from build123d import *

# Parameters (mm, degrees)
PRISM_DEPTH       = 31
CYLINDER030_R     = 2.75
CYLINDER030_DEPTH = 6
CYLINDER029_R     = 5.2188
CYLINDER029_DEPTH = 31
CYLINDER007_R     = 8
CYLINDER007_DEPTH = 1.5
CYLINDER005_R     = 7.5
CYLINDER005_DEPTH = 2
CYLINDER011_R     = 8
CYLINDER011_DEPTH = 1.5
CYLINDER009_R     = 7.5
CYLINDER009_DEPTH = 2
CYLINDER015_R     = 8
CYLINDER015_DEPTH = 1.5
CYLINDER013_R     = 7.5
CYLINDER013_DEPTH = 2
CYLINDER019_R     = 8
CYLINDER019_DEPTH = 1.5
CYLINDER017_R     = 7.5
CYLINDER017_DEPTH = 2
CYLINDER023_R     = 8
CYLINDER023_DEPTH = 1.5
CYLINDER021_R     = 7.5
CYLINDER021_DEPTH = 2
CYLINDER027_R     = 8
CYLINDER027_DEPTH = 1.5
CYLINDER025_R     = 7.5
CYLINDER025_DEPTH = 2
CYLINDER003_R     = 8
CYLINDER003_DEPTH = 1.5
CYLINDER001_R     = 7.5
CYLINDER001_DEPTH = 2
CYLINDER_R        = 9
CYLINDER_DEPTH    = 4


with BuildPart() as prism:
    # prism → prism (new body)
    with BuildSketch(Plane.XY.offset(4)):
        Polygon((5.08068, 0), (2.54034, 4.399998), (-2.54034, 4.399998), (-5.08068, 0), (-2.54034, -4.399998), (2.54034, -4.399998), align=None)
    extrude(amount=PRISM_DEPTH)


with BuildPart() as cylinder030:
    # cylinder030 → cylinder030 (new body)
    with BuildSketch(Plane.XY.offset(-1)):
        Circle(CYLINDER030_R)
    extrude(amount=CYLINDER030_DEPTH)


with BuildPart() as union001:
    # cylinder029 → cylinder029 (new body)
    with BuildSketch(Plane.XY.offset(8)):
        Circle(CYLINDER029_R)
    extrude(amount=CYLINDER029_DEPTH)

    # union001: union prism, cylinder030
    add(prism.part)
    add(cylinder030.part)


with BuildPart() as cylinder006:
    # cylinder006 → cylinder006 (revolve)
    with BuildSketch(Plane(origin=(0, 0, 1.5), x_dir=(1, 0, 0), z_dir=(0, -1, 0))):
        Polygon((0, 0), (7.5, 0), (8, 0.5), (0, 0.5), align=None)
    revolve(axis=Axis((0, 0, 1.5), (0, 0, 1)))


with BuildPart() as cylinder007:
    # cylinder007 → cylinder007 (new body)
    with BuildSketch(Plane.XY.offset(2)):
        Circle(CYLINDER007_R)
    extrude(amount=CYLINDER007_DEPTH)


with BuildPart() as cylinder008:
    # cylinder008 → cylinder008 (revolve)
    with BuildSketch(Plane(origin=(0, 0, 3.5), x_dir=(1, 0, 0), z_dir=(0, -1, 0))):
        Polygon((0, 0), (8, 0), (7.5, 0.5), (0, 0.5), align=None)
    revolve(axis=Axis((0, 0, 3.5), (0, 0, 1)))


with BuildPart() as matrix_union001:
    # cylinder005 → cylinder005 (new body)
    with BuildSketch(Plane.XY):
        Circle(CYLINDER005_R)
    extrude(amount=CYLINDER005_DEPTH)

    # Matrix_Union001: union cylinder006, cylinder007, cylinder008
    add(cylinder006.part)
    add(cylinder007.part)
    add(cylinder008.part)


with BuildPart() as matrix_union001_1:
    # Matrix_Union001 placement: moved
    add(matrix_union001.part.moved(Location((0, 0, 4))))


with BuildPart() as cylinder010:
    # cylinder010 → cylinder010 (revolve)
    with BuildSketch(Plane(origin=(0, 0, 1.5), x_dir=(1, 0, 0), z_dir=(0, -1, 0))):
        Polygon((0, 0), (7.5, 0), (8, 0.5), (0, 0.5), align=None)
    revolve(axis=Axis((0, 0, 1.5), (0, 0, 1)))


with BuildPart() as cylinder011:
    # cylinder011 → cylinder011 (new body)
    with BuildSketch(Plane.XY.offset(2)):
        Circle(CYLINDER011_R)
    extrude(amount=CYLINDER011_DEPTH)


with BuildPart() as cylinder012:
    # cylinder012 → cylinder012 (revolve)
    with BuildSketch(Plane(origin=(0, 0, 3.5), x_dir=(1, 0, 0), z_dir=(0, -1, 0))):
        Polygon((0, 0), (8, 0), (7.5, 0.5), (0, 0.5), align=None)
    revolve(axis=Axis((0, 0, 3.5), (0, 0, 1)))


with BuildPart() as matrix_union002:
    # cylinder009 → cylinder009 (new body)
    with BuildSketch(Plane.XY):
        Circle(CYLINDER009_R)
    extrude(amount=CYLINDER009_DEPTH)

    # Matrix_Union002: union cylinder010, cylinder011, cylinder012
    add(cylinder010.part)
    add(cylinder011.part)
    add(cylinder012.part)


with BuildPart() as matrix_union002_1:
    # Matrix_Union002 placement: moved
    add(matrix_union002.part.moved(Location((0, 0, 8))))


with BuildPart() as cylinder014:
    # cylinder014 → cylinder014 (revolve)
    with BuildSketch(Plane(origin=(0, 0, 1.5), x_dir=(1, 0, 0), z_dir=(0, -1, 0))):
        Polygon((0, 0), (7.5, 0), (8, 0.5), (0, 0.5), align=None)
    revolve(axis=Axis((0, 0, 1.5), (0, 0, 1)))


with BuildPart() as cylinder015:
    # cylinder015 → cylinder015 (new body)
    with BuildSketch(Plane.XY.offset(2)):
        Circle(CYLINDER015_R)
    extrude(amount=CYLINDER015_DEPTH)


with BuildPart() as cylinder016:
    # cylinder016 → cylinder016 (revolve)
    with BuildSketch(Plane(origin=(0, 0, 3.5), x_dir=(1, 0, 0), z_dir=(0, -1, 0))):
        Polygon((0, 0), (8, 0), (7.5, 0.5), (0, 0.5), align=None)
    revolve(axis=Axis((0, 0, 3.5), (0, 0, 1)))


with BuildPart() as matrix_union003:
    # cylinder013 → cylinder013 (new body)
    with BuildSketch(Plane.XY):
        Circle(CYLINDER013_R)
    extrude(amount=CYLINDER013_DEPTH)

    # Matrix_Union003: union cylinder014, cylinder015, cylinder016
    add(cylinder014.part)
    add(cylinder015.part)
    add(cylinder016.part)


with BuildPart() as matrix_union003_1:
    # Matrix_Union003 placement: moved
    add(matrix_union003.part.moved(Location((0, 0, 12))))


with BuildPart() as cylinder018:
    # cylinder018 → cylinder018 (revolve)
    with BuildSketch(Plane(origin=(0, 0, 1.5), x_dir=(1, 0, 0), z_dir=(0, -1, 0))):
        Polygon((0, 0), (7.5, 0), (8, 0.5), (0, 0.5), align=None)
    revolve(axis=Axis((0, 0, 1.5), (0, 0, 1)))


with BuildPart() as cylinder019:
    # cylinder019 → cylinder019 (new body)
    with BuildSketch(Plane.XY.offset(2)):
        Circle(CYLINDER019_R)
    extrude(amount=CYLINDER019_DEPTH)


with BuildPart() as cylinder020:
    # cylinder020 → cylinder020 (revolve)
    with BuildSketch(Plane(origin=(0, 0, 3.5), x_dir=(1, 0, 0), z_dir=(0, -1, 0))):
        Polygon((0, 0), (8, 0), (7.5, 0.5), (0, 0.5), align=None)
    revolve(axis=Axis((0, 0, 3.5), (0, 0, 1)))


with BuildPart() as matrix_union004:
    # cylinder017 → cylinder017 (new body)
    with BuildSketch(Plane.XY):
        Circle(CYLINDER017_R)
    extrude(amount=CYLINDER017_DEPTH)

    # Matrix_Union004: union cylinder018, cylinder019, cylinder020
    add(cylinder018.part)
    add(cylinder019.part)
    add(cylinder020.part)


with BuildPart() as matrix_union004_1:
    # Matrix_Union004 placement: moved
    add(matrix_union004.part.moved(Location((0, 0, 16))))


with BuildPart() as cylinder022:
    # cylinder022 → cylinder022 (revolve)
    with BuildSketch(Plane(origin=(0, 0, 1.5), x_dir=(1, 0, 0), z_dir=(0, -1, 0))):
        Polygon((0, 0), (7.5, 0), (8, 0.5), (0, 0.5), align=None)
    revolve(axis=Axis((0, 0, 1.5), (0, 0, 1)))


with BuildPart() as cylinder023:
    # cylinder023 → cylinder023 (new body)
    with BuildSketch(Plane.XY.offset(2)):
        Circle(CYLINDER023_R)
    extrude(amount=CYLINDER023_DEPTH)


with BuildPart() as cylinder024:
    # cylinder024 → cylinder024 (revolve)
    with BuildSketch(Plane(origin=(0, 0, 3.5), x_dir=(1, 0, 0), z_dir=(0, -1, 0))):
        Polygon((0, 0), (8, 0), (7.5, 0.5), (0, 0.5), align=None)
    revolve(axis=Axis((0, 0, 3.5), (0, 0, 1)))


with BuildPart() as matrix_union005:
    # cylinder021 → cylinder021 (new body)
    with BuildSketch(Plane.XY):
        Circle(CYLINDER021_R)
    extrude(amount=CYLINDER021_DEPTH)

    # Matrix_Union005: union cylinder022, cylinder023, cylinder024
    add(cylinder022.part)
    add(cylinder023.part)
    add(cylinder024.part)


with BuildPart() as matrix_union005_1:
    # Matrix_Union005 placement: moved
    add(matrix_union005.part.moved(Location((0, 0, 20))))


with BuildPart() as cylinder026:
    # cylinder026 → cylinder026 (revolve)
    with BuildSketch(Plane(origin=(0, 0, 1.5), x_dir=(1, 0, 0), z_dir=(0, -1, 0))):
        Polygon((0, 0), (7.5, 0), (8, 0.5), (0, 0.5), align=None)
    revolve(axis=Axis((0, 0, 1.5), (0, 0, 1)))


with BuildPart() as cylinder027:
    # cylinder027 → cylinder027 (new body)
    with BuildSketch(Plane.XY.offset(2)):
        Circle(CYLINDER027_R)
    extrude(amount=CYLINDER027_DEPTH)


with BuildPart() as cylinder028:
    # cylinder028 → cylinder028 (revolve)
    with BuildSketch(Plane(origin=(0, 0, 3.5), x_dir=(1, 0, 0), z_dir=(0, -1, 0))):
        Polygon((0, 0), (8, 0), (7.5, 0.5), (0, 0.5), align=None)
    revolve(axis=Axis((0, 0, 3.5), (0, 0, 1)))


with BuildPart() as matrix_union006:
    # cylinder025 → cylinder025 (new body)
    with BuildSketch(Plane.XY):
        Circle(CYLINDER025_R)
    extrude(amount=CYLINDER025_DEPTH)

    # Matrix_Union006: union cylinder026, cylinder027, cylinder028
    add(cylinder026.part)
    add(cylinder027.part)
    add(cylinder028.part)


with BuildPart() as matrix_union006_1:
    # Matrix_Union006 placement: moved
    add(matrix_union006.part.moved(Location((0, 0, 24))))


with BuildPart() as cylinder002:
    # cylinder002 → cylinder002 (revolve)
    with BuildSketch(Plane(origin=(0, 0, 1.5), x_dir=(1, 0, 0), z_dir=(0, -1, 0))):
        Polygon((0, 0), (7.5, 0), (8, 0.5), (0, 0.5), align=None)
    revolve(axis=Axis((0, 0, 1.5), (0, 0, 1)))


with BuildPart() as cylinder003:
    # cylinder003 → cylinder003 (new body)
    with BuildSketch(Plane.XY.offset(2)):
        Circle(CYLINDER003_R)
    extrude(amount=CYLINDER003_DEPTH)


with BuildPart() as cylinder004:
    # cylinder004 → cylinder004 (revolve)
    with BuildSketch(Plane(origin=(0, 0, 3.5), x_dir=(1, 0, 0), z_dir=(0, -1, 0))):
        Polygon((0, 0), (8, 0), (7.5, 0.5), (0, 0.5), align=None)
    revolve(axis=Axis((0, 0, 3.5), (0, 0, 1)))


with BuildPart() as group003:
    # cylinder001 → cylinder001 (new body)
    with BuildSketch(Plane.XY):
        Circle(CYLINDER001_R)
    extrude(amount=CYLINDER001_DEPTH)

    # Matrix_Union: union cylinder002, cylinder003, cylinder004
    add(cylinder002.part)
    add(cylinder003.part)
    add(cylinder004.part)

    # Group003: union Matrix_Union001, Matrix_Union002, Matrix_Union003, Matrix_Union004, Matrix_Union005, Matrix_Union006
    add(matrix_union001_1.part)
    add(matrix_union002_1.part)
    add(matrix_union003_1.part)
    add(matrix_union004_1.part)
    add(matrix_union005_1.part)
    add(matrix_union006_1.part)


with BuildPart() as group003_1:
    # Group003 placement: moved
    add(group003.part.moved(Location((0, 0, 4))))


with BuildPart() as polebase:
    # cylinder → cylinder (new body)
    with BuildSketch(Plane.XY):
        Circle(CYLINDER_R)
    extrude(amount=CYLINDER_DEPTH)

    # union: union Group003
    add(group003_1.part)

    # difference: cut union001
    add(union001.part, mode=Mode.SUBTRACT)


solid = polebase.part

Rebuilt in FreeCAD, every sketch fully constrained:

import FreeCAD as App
import Part
import Sketcher
from FreeCAD import Vector
Q = App.Units.Quantity


def add_polygon(sketch, points):
    """Adds a closed chain of lines whose ends are joined by coincident constraints."""
    first, n = sketch.GeometryCount, len(points)
    for a, b in zip(points, points[1:] + points[:1]):
        sketch.addGeometry(Part.LineSegment(App.Vector(*a, 0), App.Vector(*b, 0)), False)
    for i in range(n):
        sketch.addConstraint(Sketcher.Constraint("Coincident", first + i, 2, first + (i + 1) % n, 1))

doc = App.newDocument("Part")
params = doc.addObject("Spreadsheet::Sheet", "Params")
for row, (alias, value) in enumerate([
    ("pad1_length", "31 mm"),
    ("sketch2_diameter", "5.5 mm"),
    ("pad2_length", "6 mm"),
    ("pad3_length", "31 mm"),
    ("sketch4_width", "8 mm"),
    ("sketch4_width2", "7.5 mm"),
    ("revolution_angle", "360 deg"),
    ("sketch5_diameter", "16 mm"),
    ("pad4_length", "1.5 mm"),
    ("sketch6_width", "8 mm"),
    ("sketch6_width2", "7.5 mm"),
    ("revolution2_angle", "360 deg"),
    ("sketch7_diameter", "15 mm"),
    ("pad5_length", "2 mm"),
    ("sketch8_width", "8 mm"),
    ("sketch8_width2", "7.5 mm"),
    ("revolution3_angle", "360 deg"),
    ("sketch9_diameter", "16 mm"),
    ("pad6_length", "1.5 mm"),
    ("sketch10_width", "8 mm"),
    ("sketch10_width2", "7.5 mm"),
    ("revolution4_angle", "360 deg"),
    ("sketch11_diameter", "15 mm"),
    ("pad7_length", "2 mm"),
    ("sketch12_width", "8 mm"),
    ("sketch12_width2", "7.5 mm"),
    ("revolution5_angle", "360 deg"),
    ("sketch13_diameter", "16 mm"),
    ("pad8_length", "1.5 mm"),
    ("sketch14_width", "8 mm"),
    ("sketch14_width2", "7.5 mm"),
    ("revolution6_angle", "360 deg"),
    ("sketch15_diameter", "15 mm"),
    ("pad9_length", "2 mm"),
    ("sketch16_width", "8 mm"),
    ("sketch16_width2", "7.5 mm"),
    ("revolution7_angle", "360 deg"),
    ("sketch17_diameter", "16 mm"),
    ("pad10_length", "1.5 mm"),
    ("sketch18_width", "8 mm"),
    ("sketch18_width2", "7.5 mm"),
    ("revolution8_angle", "360 deg"),
    ("sketch19_diameter", "15 mm"),
    ("pad11_length", "2 mm"),
    ("sketch20_width", "8 mm"),
    ("sketch20_width2", "7.5 mm"),
    ("revolution9_angle", "360 deg"),
    ("sketch21_diameter", "16 mm"),
    ("pad12_length", "1.5 mm"),
    ("sketch22_width", "8 mm"),
    ("sketch22_width2", "7.5 mm"),
    ("revolution10_angle", "360 deg"),
    ("sketch23_diameter", "15 mm"),
    ("pad13_length", "2 mm"),
    ("sketch24_width", "8 mm"),
    ("sketch24_width2", "7.5 mm"),
    ("revolution11_angle", "360 deg"),
    ("sketch25_diameter", "16 mm"),
    ("pad14_length", "1.5 mm"),
    ("sketch26_width", "8 mm"),
    ("sketch26_width2", "7.5 mm"),
    ("revolution12_angle", "360 deg"),
    ("sketch27_diameter", "15 mm"),
    ("pad15_length", "2 mm"),
    ("sketch28_width", "8 mm"),
    ("sketch28_width2", "7.5 mm"),
    ("revolution13_angle", "360 deg"),
    ("sketch29_diameter", "16 mm"),
    ("pad16_length", "1.5 mm"),
    ("sketch30_width", "8 mm"),
    ("sketch30_width2", "7.5 mm"),
    ("revolution14_angle", "360 deg"),
    ("sketch31_diameter", "15 mm"),
    ("pad17_length", "2 mm"),
    ("sketch32_diameter", "18 mm"),
    ("pad18_length", "4 mm"),
], start=1):
    params.set(f"A{row}", alias)
    params.set(f"B{row}", "=" + value)
    params.setAlias(f"B{row}", alias)

body = doc.addObject("PartDesign::Body", "Body")

sketch1 = body.newObject("Sketcher::SketchObject", "Sketch")
sketch1.AttachmentSupport = (doc.getObject("XY_Plane"), [""])
sketch1.MapMode = "FlatFace"
sketch1.AttachmentOffset = App.Placement(Vector(0, 0, 4), App.Rotation())
add_polygon(sketch1, [(5, 0), (3, 4), (-3, 4), (-5, 0), (-3, -4), (3, -4)])
sketch1.addConstraint([
    Sketcher.Constraint("Horizontal", 1),
    Sketcher.Constraint("Horizontal", 4),
    Sketcher.Constraint("Symmetric", 0, 2, 3, 2, -1, 1),
    Sketcher.Constraint("Symmetric", 2, 2, 5, 2, -1, 1),
    Sketcher.Constraint("PointOnObject", 2, 2, -1),
    Sketcher.Constraint("Parallel", 2, 5),
    Sketcher.Constraint("Vertical", 1, 2, 3, 2),
    Sketcher.Constraint("Angle", 0, Q("120 deg")),
    Sketcher.Constraint("DistanceX", 1, 2, 1, 1, 5.08068),
    Sketcher.Constraint("Distance", 0, 5.08068),
])
pad1 = body.newObject("PartDesign::Pad", "Pad")
pad1.Profile = sketch1
pad1.setExpression("Length", "Params.pad1_length")
body2 = doc.addObject("PartDesign::Body", "Body001")

sketch2 = body2.newObject("Sketcher::SketchObject", "Sketch001")
sketch2.AttachmentSupport = (doc.getObject("XY_Plane001"), [""])
sketch2.MapMode = "FlatFace"
sketch2.AttachmentOffset = App.Placement(Vector(0, 0, -1), App.Rotation())
sketch2.addGeometry(Part.Circle(Vector(0, 0, 0), Vector(0, 0, 1), 2.8), False)
sketch2.addConstraint([
    Sketcher.Constraint("Coincident", 0, 3, -1, 1),
    Sketcher.Constraint("Diameter", 0, 5.5),
])
sketch2.setExpression("Constraints[1]", "Params.sketch2_diameter")
pad2 = body2.newObject("PartDesign::Pad", "Pad001")
pad2.Profile = sketch2
pad2.setExpression("Length", "Params.pad2_length")
body3 = doc.addObject("PartDesign::Body", "Body002")

sketch3 = body3.newObject("Sketcher::SketchObject", "Sketch002")
sketch3.AttachmentSupport = (doc.getObject("XY_Plane002"), [""])
sketch3.MapMode = "FlatFace"
sketch3.AttachmentOffset = App.Placement(Vector(0, 0, 8), App.Rotation())
sketch3.addGeometry(Part.Circle(Vector(0, 0, 0), Vector(0, 0, 1), 5), False)
sketch3.addConstraint([
    Sketcher.Constraint("Coincident", 0, 3, -1, 1),
    Sketcher.Constraint("Diameter", 0, 10.4376),
])
pad3 = body3.newObject("PartDesign::Pad", "Pad002")
pad3.Profile = sketch3
pad3.setExpression("Length", "Params.pad3_length")
doc.recompute()

boolean = body3.newObject("PartDesign::Boolean", "Boolean")
boolean.Type = "Fuse"
boolean.addObjects([body])
doc.recompute()

boolean2 = body3.newObject("PartDesign::Boolean", "Boolean001")
boolean2.Type = "Fuse"
boolean2.addObjects([body2])
body4 = doc.addObject("PartDesign::Body", "Body003")

sketch4 = body4.newObject("Sketcher::SketchObject", "Sketch003")
sketch4.AttachmentSupport = (doc.getObject("XZ_Plane003"), [""])
sketch4.MapMode = "FlatFace"
add_polygon(sketch4, [(0, 1.5), (7.5, 1.5), (8, 2), (0, 2)])
sketch4.addConstraint([
    Sketcher.Constraint("Horizontal", 0),
    Sketcher.Constraint("Horizontal", 2),
    Sketcher.Constraint("Vertical", 3),
    Sketcher.Constraint("PointOnObject", 2, 2, -2),
    Sketcher.Constraint("DistanceX", 2, 2, 2, 1, 8.0),
    Sketcher.Constraint("Angle", 1, Q("45 deg")),
    Sketcher.Constraint("DistanceX", 0, 1, 0, 2, 7.5),
    Sketcher.Constraint("DistanceY", -1, 1, 1, 2, 2.0),
])
sketch4.setExpression("Constraints[8]", "Params.sketch4_width")
sketch4.setExpression("Constraints[10]", "Params.sketch4_width2")
revolution = body4.newObject("PartDesign::Revolution", "Revolution")
revolution.Profile = sketch4
revolution.ReferenceAxis = (sketch4, ["V_Axis"])
revolution.setExpression("Angle", "Params.revolution_angle")
body5 = doc.addObject("PartDesign::Body", "Body004")

sketch5 = body5.newObject("Sketcher::SketchObject", "Sketch004")
sketch5.AttachmentSupport = (doc.getObject("XY_Plane004"), [""])
sketch5.MapMode = "FlatFace"
sketch5.AttachmentOffset = App.Placement(Vector(0, 0, 2), App.Rotation())
sketch5.addGeometry(Part.Circle(Vector(0, 0, 0), Vector(0, 0, 1), 8), False)
sketch5.addConstraint([
    Sketcher.Constraint("Coincident", 0, 3, -1, 1),
    Sketcher.Constraint("Diameter", 0, 16.0),
])
sketch5.setExpression("Constraints[1]", "Params.sketch5_diameter")
pad4 = body5.newObject("PartDesign::Pad", "Pad003")
pad4.Profile = sketch5
pad4.setExpression("Length", "Params.pad4_length")
body6 = doc.addObject("PartDesign::Body", "Body005")

sketch6 = body6.newObject("Sketcher::SketchObject", "Sketch005")
sketch6.AttachmentSupport = (doc.getObject("XZ_Plane005"), [""])
sketch6.MapMode = "FlatFace"
add_polygon(sketch6, [(0, 3.5), (8, 3.5), (7.5, 4), (0, 4)])
sketch6.addConstraint([
    Sketcher.Constraint("Horizontal", 0),
    Sketcher.Constraint("Horizontal", 2),
    Sketcher.Constraint("Vertical", 3),
    Sketcher.Constraint("PointOnObject", 2, 2, -2),
    Sketcher.Constraint("DistanceX", 0, 1, 0, 2, 8.0),
    Sketcher.Constraint("Angle", 1, Q("135 deg")),
    Sketcher.Constraint("DistanceX", 2, 2, 2, 1, 7.5),
    Sketcher.Constraint("DistanceY", -1, 1, 1, 2, 4.0),
])
sketch6.setExpression("Constraints[8]", "Params.sketch6_width")
sketch6.setExpression("Constraints[10]", "Params.sketch6_width2")
revolution2 = body6.newObject("PartDesign::Revolution", "Revolution001")
revolution2.Profile = sketch6
revolution2.ReferenceAxis = (sketch6, ["V_Axis"])
revolution2.setExpression("Angle", "Params.revolution2_angle")
body7 = doc.addObject("PartDesign::Body", "Body006")

sketch7 = body7.newObject("Sketcher::SketchObject", "Sketch006")
sketch7.AttachmentSupport = (doc.getObject("XY_Plane006"), [""])
sketch7.MapMode = "FlatFace"
sketch7.addGeometry(Part.Circle(Vector(0, 0, 0), Vector(0, 0, 1), 8), False)
sketch7.addConstraint([
    Sketcher.Constraint("Coincident", 0, 3, -1, 1),
    Sketcher.Constraint("Diameter", 0, 15.0),
])
sketch7.setExpression("Constraints[1]", "Params.sketch7_diameter")
pad5 = body7.newObject("PartDesign::Pad", "Pad004")
pad5.Profile = sketch7
pad5.setExpression("Length", "Params.pad5_length")
doc.recompute()

boolean3 = body7.newObject("PartDesign::Boolean", "Boolean002")
boolean3.Type = "Fuse"
boolean3.addObjects([body4])
doc.recompute()

boolean4 = body7.newObject("PartDesign::Boolean", "Boolean003")
boolean4.Type = "Fuse"
boolean4.addObjects([body5])
doc.recompute()

boolean5 = body7.newObject("PartDesign::Boolean", "Boolean004")
boolean5.Type = "Fuse"
boolean5.addObjects([body6])
body8 = doc.addObject("PartDesign::Body", "Body007")
doc.recompute()

body7.Placement = App.Placement(Vector(0, 0, 4), App.Rotation(Vector(0, 0, 1), 0))
boolean6 = body8.newObject("PartDesign::Boolean", "Boolean005")
boolean6.Type = "Fuse"
boolean6.addObjects([body7])
body9 = doc.addObject("PartDesign::Body", "Body008")

sketch8 = body9.newObject("Sketcher::SketchObject", "Sketch007")
sketch8.AttachmentSupport = (doc.getObject("XZ_Plane008"), [""])
sketch8.MapMode = "FlatFace"
add_polygon(sketch8, [(0, 1.5), (7.5, 1.5), (8, 2), (0, 2)])
sketch8.addConstraint([
    Sketcher.Constraint("Horizontal", 0),
    Sketcher.Constraint("Horizontal", 2),
    Sketcher.Constraint("Vertical", 3),
    Sketcher.Constraint("PointOnObject", 2, 2, -2),
    Sketcher.Constraint("DistanceX", 2, 2, 2, 1, 8.0),
    Sketcher.Constraint("Angle", 1, Q("45 deg")),
    Sketcher.Constraint("DistanceX", 0, 1, 0, 2, 7.5),
    Sketcher.Constraint("DistanceY", -1, 1, 1, 2, 2.0),
])
sketch8.setExpression("Constraints[8]", "Params.sketch8_width")
sketch8.setExpression("Constraints[10]", "Params.sketch8_width2")
revolution3 = body9.newObject("PartDesign::Revolution", "Revolution002")
revolution3.Profile = sketch8
revolution3.ReferenceAxis = (sketch8, ["V_Axis"])
revolution3.setExpression("Angle", "Params.revolution3_angle")
body10 = doc.addObject("PartDesign::Body", "Body009")

sketch9 = body10.newObject("Sketcher::SketchObject", "Sketch008")
sketch9.AttachmentSupport = (doc.getObject("XY_Plane009"), [""])
sketch9.MapMode = "FlatFace"
sketch9.AttachmentOffset = App.Placement(Vector(0, 0, 2), App.Rotation())
sketch9.addGeometry(Part.Circle(Vector(0, 0, 0), Vector(0, 0, 1), 8), False)
sketch9.addConstraint([
    Sketcher.Constraint("Coincident", 0, 3, -1, 1),
    Sketcher.Constraint("Diameter", 0, 16.0),
])
sketch9.setExpression("Constraints[1]", "Params.sketch9_diameter")
pad6 = body10.newObject("PartDesign::Pad", "Pad005")
pad6.Profile = sketch9
pad6.setExpression("Length", "Params.pad6_length")
body11 = doc.addObject("PartDesign::Body", "Body010")

sketch10 = body11.newObject("Sketcher::SketchObject", "Sketch009")
sketch10.AttachmentSupport = (doc.getObject("XZ_Plane010"), [""])
sketch10.MapMode = "FlatFace"
add_polygon(sketch10, [(0, 3.5), (8, 3.5), (7.5, 4), (0, 4)])
sketch10.addConstraint([
    Sketcher.Constraint("Horizontal", 0),
    Sketcher.Constraint("Horizontal", 2),
    Sketcher.Constraint("Vertical", 3),
    Sketcher.Constraint("PointOnObject", 2, 2, -2),
    Sketcher.Constraint("DistanceX", 0, 1, 0, 2, 8.0),
    Sketcher.Constraint("Angle", 1, Q("135 deg")),
    Sketcher.Constraint("DistanceX", 2, 2, 2, 1, 7.5),
    Sketcher.Constraint("DistanceY", -1, 1, 1, 2, 4.0),
])
sketch10.setExpression("Constraints[8]", "Params.sketch10_width")
sketch10.setExpression("Constraints[10]", "Params.sketch10_width2")
revolution4 = body11.newObject("PartDesign::Revolution", "Revolution003")
revolution4.Profile = sketch10
revolution4.ReferenceAxis = (sketch10, ["V_Axis"])
revolution4.setExpression("Angle", "Params.revolution4_angle")
body12 = doc.addObject("PartDesign::Body", "Body011")

sketch11 = body12.newObject("Sketcher::SketchObject", "Sketch010")
sketch11.AttachmentSupport = (doc.getObject("XY_Plane011"), [""])
sketch11.MapMode = "FlatFace"
sketch11.addGeometry(Part.Circle(Vector(0, 0, 0), Vector(0, 0, 1), 8), False)
sketch11.addConstraint([
    Sketcher.Constraint("Coincident", 0, 3, -1, 1),
    Sketcher.Constraint("Diameter", 0, 15.0),
])
sketch11.setExpression("Constraints[1]", "Params.sketch11_diameter")
pad7 = body12.newObject("PartDesign::Pad", "Pad006")
pad7.Profile = sketch11
pad7.setExpression("Length", "Params.pad7_length")
doc.recompute()

boolean7 = body12.newObject("PartDesign::Boolean", "Boolean006")
boolean7.Type = "Fuse"
boolean7.addObjects([body9])
doc.recompute()

boolean8 = body12.newObject("PartDesign::Boolean", "Boolean007")
boolean8.Type = "Fuse"
boolean8.addObjects([body10])
doc.recompute()

boolean9 = body12.newObject("PartDesign::Boolean", "Boolean008")
boolean9.Type = "Fuse"
boolean9.addObjects([body11])
body13 = doc.addObject("PartDesign::Body", "Body012")
doc.recompute()

body12.Placement = App.Placement(Vector(0, 0, 8), App.Rotation(Vector(0, 0, 1), 0))
boolean10 = body13.newObject("PartDesign::Boolean", "Boolean009")
boolean10.Type = "Fuse"
boolean10.addObjects([body12])
body14 = doc.addObject("PartDesign::Body", "Body013")

sketch12 = body14.newObject("Sketcher::SketchObject", "Sketch011")
sketch12.AttachmentSupport = (doc.getObject("XZ_Plane013"), [""])
sketch12.MapMode = "FlatFace"
add_polygon(sketch12, [(0, 1.5), (7.5, 1.5), (8, 2), (0, 2)])
sketch12.addConstraint([
    Sketcher.Constraint("Horizontal", 0),
    Sketcher.Constraint("Horizontal", 2),
    Sketcher.Constraint("Vertical", 3),
    Sketcher.Constraint("PointOnObject", 2, 2, -2),
    Sketcher.Constraint("DistanceX", 2, 2, 2, 1, 8.0),
    Sketcher.Constraint("Angle", 1, Q("45 deg")),
    Sketcher.Constraint("DistanceX", 0, 1, 0, 2, 7.5),
    Sketcher.Constraint("DistanceY", -1, 1, 1, 2, 2.0),
])
sketch12.setExpression("Constraints[8]", "Params.sketch12_width")
sketch12.setExpression("Constraints[10]", "Params.sketch12_width2")
revolution5 = body14.newObject("PartDesign::Revolution", "Revolution004")
revolution5.Profile = sketch12
revolution5.ReferenceAxis = (sketch12, ["V_Axis"])
revolution5.setExpression("Angle", "Params.revolution5_angle")
body15 = doc.addObject("PartDesign::Body", "Body014")

sketch13 = body15.newObject("Sketcher::SketchObject", "Sketch012")
sketch13.AttachmentSupport = (doc.getObject("XY_Plane014"), [""])
sketch13.MapMode = "FlatFace"
sketch13.AttachmentOffset = App.Placement(Vector(0, 0, 2), App.Rotation())
sketch13.addGeometry(Part.Circle(Vector(0, 0, 0), Vector(0, 0, 1), 8), False)
sketch13.addConstraint([
    Sketcher.Constraint("Coincident", 0, 3, -1, 1),
    Sketcher.Constraint("Diameter", 0, 16.0),
])
sketch13.setExpression("Constraints[1]", "Params.sketch13_diameter")
pad8 = body15.newObject("PartDesign::Pad", "Pad007")
pad8.Profile = sketch13
pad8.setExpression("Length", "Params.pad8_length")
body16 = doc.addObject("PartDesign::Body", "Body015")

sketch14 = body16.newObject("Sketcher::SketchObject", "Sketch013")
sketch14.AttachmentSupport = (doc.getObject("XZ_Plane015"), [""])
sketch14.MapMode = "FlatFace"
add_polygon(sketch14, [(0, 3.5), (8, 3.5), (7.5, 4), (0, 4)])
sketch14.addConstraint([
    Sketcher.Constraint("Horizontal", 0),
    Sketcher.Constraint("Horizontal", 2),
    Sketcher.Constraint("Vertical", 3),
    Sketcher.Constraint("PointOnObject", 2, 2, -2),
    Sketcher.Constraint("DistanceX", 0, 1, 0, 2, 8.0),
    Sketcher.Constraint("Angle", 1, Q("135 deg")),
    Sketcher.Constraint("DistanceX", 2, 2, 2, 1, 7.5),
    Sketcher.Constraint("DistanceY", -1, 1, 1, 2, 4.0),
])
sketch14.setExpression("Constraints[8]", "Params.sketch14_width")
sketch14.setExpression("Constraints[10]", "Params.sketch14_width2")
revolution6 = body16.newObject("PartDesign::Revolution", "Revolution005")
revolution6.Profile = sketch14
revolution6.ReferenceAxis = (sketch14, ["V_Axis"])
revolution6.setExpression("Angle", "Params.revolution6_angle")
body17 = doc.addObject("PartDesign::Body", "Body016")

sketch15 = body17.newObject("Sketcher::SketchObject", "Sketch014")
sketch15.AttachmentSupport = (doc.getObject("XY_Plane016"), [""])
sketch15.MapMode = "FlatFace"
sketch15.addGeometry(Part.Circle(Vector(0, 0, 0), Vector(0, 0, 1), 8), False)
sketch15.addConstraint([
    Sketcher.Constraint("Coincident", 0, 3, -1, 1),
    Sketcher.Constraint("Diameter", 0, 15.0),
])
sketch15.setExpression("Constraints[1]", "Params.sketch15_diameter")
pad9 = body17.newObject("PartDesign::Pad", "Pad008")
pad9.Profile = sketch15
pad9.setExpression("Length", "Params.pad9_length")
doc.recompute()

boolean11 = body17.newObject("PartDesign::Boolean", "Boolean010")
boolean11.Type = "Fuse"
boolean11.addObjects([body14])
doc.recompute()

boolean12 = body17.newObject("PartDesign::Boolean", "Boolean011")
boolean12.Type = "Fuse"
boolean12.addObjects([body15])
doc.recompute()

boolean13 = body17.newObject("PartDesign::Boolean", "Boolean012")
boolean13.Type = "Fuse"
boolean13.addObjects([body16])
body18 = doc.addObject("PartDesign::Body", "Body017")
doc.recompute()

body17.Placement = App.Placement(Vector(0, 0, 12), App.Rotation(Vector(0, 0, 1), 0))
boolean14 = body18.newObject("PartDesign::Boolean", "Boolean013")
boolean14.Type = "Fuse"
boolean14.addObjects([body17])
body19 = doc.addObject("PartDesign::Body", "Body018")

sketch16 = body19.newObject("Sketcher::SketchObject", "Sketch015")
sketch16.AttachmentSupport = (doc.getObject("XZ_Plane018"), [""])
sketch16.MapMode = "FlatFace"
add_polygon(sketch16, [(0, 1.5), (7.5, 1.5), (8, 2), (0, 2)])
sketch16.addConstraint([
    Sketcher.Constraint("Horizontal", 0),
    Sketcher.Constraint("Horizontal", 2),
    Sketcher.Constraint("Vertical", 3),
    Sketcher.Constraint("PointOnObject", 2, 2, -2),
    Sketcher.Constraint("DistanceX", 2, 2, 2, 1, 8.0),
    Sketcher.Constraint("Angle", 1, Q("45 deg")),
    Sketcher.Constraint("DistanceX", 0, 1, 0, 2, 7.5),
    Sketcher.Constraint("DistanceY", -1, 1, 1, 2, 2.0),
])
sketch16.setExpression("Constraints[8]", "Params.sketch16_width")
sketch16.setExpression("Constraints[10]", "Params.sketch16_width2")
revolution7 = body19.newObject("PartDesign::Revolution", "Revolution006")
revolution7.Profile = sketch16
revolution7.ReferenceAxis = (sketch16, ["V_Axis"])
revolution7.setExpression("Angle", "Params.revolution7_angle")
body20 = doc.addObject("PartDesign::Body", "Body019")

sketch17 = body20.newObject("Sketcher::SketchObject", "Sketch016")
sketch17.AttachmentSupport = (doc.getObject("XY_Plane019"), [""])
sketch17.MapMode = "FlatFace"
sketch17.AttachmentOffset = App.Placement(Vector(0, 0, 2), App.Rotation())
sketch17.addGeometry(Part.Circle(Vector(0, 0, 0), Vector(0, 0, 1), 8), False)
sketch17.addConstraint([
    Sketcher.Constraint("Coincident", 0, 3, -1, 1),
    Sketcher.Constraint("Diameter", 0, 16.0),
])
sketch17.setExpression("Constraints[1]", "Params.sketch17_diameter")
pad10 = body20.newObject("PartDesign::Pad", "Pad009")
pad10.Profile = sketch17
pad10.setExpression("Length", "Params.pad10_length")
body21 = doc.addObject("PartDesign::Body", "Body020")

sketch18 = body21.newObject("Sketcher::SketchObject", "Sketch017")
sketch18.AttachmentSupport = (doc.getObject("XZ_Plane020"), [""])
sketch18.MapMode = "FlatFace"
add_polygon(sketch18, [(0, 3.5), (8, 3.5), (7.5, 4), (0, 4)])
sketch18.addConstraint([
    Sketcher.Constraint("Horizontal", 0),
    Sketcher.Constraint("Horizontal", 2),
    Sketcher.Constraint("Vertical", 3),
    Sketcher.Constraint("PointOnObject", 2, 2, -2),
    Sketcher.Constraint("DistanceX", 0, 1, 0, 2, 8.0),
    Sketcher.Constraint("Angle", 1, Q("135 deg")),
    Sketcher.Constraint("DistanceX", 2, 2, 2, 1, 7.5),
    Sketcher.Constraint("DistanceY", -1, 1, 1, 2, 4.0),
])
sketch18.setExpression("Constraints[8]", "Params.sketch18_width")
sketch18.setExpression("Constraints[10]", "Params.sketch18_width2")
revolution8 = body21.newObject("PartDesign::Revolution", "Revolution007")
revolution8.Profile = sketch18
revolution8.ReferenceAxis = (sketch18, ["V_Axis"])
revolution8.setExpression("Angle", "Params.revolution8_angle")
body22 = doc.addObject("PartDesign::Body", "Body021")

sketch19 = body22.newObject("Sketcher::SketchObject", "Sketch018")
sketch19.AttachmentSupport = (doc.getObject("XY_Plane021"), [""])
sketch19.MapMode = "FlatFace"
sketch19.addGeometry(Part.Circle(Vector(0, 0, 0), Vector(0, 0, 1), 8), False)
sketch19.addConstraint([
    Sketcher.Constraint("Coincident", 0, 3, -1, 1),
    Sketcher.Constraint("Diameter", 0, 15.0),
])
sketch19.setExpression("Constraints[1]", "Params.sketch19_diameter")
pad11 = body22.newObject("PartDesign::Pad", "Pad010")
pad11.Profile = sketch19
pad11.setExpression("Length", "Params.pad11_length")
doc.recompute()

boolean15 = body22.newObject("PartDesign::Boolean", "Boolean014")
boolean15.Type = "Fuse"
boolean15.addObjects([body19])
doc.recompute()

boolean16 = body22.newObject("PartDesign::Boolean", "Boolean015")
boolean16.Type = "Fuse"
boolean16.addObjects([body20])
doc.recompute()

boolean17 = body22.newObject("PartDesign::Boolean", "Boolean016")
boolean17.Type = "Fuse"
boolean17.addObjects([body21])
body23 = doc.addObject("PartDesign::Body", "Body022")
doc.recompute()

body22.Placement = App.Placement(Vector(0, 0, 16), App.Rotation(Vector(0, 0, 1), 0))
boolean18 = body23.newObject("PartDesign::Boolean", "Boolean017")
boolean18.Type = "Fuse"
boolean18.addObjects([body22])
body24 = doc.addObject("PartDesign::Body", "Body023")

sketch20 = body24.newObject("Sketcher::SketchObject", "Sketch019")
sketch20.AttachmentSupport = (doc.getObject("XZ_Plane023"), [""])
sketch20.MapMode = "FlatFace"
add_polygon(sketch20, [(0, 1.5), (7.5, 1.5), (8, 2), (0, 2)])
sketch20.addConstraint([
    Sketcher.Constraint("Horizontal", 0),
    Sketcher.Constraint("Horizontal", 2),
    Sketcher.Constraint("Vertical", 3),
    Sketcher.Constraint("PointOnObject", 2, 2, -2),
    Sketcher.Constraint("DistanceX", 2, 2, 2, 1, 8.0),
    Sketcher.Constraint("Angle", 1, Q("45 deg")),
    Sketcher.Constraint("DistanceX", 0, 1, 0, 2, 7.5),
    Sketcher.Constraint("DistanceY", -1, 1, 1, 2, 2.0),
])
sketch20.setExpression("Constraints[8]", "Params.sketch20_width")
sketch20.setExpression("Constraints[10]", "Params.sketch20_width2")
revolution9 = body24.newObject("PartDesign::Revolution", "Revolution008")
revolution9.Profile = sketch20
revolution9.ReferenceAxis = (sketch20, ["V_Axis"])
revolution9.setExpression("Angle", "Params.revolution9_angle")
body25 = doc.addObject("PartDesign::Body", "Body024")

sketch21 = body25.newObject("Sketcher::SketchObject", "Sketch020")
sketch21.AttachmentSupport = (doc.getObject("XY_Plane024"), [""])
sketch21.MapMode = "FlatFace"
sketch21.AttachmentOffset = App.Placement(Vector(0, 0, 2), App.Rotation())
sketch21.addGeometry(Part.Circle(Vector(0, 0, 0), Vector(0, 0, 1), 8), False)
sketch21.addConstraint([
    Sketcher.Constraint("Coincident", 0, 3, -1, 1),
    Sketcher.Constraint("Diameter", 0, 16.0),
])
sketch21.setExpression("Constraints[1]", "Params.sketch21_diameter")
pad12 = body25.newObject("PartDesign::Pad", "Pad011")
pad12.Profile = sketch21
pad12.setExpression("Length", "Params.pad12_length")
body26 = doc.addObject("PartDesign::Body", "Body025")

sketch22 = body26.newObject("Sketcher::SketchObject", "Sketch021")
sketch22.AttachmentSupport = (doc.getObject("XZ_Plane025"), [""])
sketch22.MapMode = "FlatFace"
add_polygon(sketch22, [(0, 3.5), (8, 3.5), (7.5, 4), (0, 4)])
sketch22.addConstraint([
    Sketcher.Constraint("Horizontal", 0),
    Sketcher.Constraint("Horizontal", 2),
    Sketcher.Constraint("Vertical", 3),
    Sketcher.Constraint("PointOnObject", 2, 2, -2),
    Sketcher.Constraint("DistanceX", 0, 1, 0, 2, 8.0),
    Sketcher.Constraint("Angle", 1, Q("135 deg")),
    Sketcher.Constraint("DistanceX", 2, 2, 2, 1, 7.5),
    Sketcher.Constraint("DistanceY", -1, 1, 1, 2, 4.0),
])
sketch22.setExpression("Constraints[8]", "Params.sketch22_width")
sketch22.setExpression("Constraints[10]", "Params.sketch22_width2")
revolution10 = body26.newObject("PartDesign::Revolution", "Revolution009")
revolution10.Profile = sketch22
revolution10.ReferenceAxis = (sketch22, ["V_Axis"])
revolution10.setExpression("Angle", "Params.revolution10_angle")
body27 = doc.addObject("PartDesign::Body", "Body026")

sketch23 = body27.newObject("Sketcher::SketchObject", "Sketch022")
sketch23.AttachmentSupport = (doc.getObject("XY_Plane026"), [""])
sketch23.MapMode = "FlatFace"
sketch23.addGeometry(Part.Circle(Vector(0, 0, 0), Vector(0, 0, 1), 8), False)
sketch23.addConstraint([
    Sketcher.Constraint("Coincident", 0, 3, -1, 1),
    Sketcher.Constraint("Diameter", 0, 15.0),
])
sketch23.setExpression("Constraints[1]", "Params.sketch23_diameter")
pad13 = body27.newObject("PartDesign::Pad", "Pad012")
pad13.Profile = sketch23
pad13.setExpression("Length", "Params.pad13_length")
doc.recompute()

boolean19 = body27.newObject("PartDesign::Boolean", "Boolean018")
boolean19.Type = "Fuse"
boolean19.addObjects([body24])
doc.recompute()

boolean20 = body27.newObject("PartDesign::Boolean", "Boolean019")
boolean20.Type = "Fuse"
boolean20.addObjects([body25])
doc.recompute()

boolean21 = body27.newObject("PartDesign::Boolean", "Boolean020")
boolean21.Type = "Fuse"
boolean21.addObjects([body26])
body28 = doc.addObject("PartDesign::Body", "Body027")
doc.recompute()

body27.Placement = App.Placement(Vector(0, 0, 20), App.Rotation(Vector(0, 0, 1), 0))
boolean22 = body28.newObject("PartDesign::Boolean", "Boolean021")
boolean22.Type = "Fuse"
boolean22.addObjects([body27])
body29 = doc.addObject("PartDesign::Body", "Body028")

sketch24 = body29.newObject("Sketcher::SketchObject", "Sketch023")
sketch24.AttachmentSupport = (doc.getObject("XZ_Plane028"), [""])
sketch24.MapMode = "FlatFace"
add_polygon(sketch24, [(0, 1.5), (7.5, 1.5), (8, 2), (0, 2)])
sketch24.addConstraint([
    Sketcher.Constraint("Horizontal", 0),
    Sketcher.Constraint("Horizontal", 2),
    Sketcher.Constraint("Vertical", 3),
    Sketcher.Constraint("PointOnObject", 2, 2, -2),
    Sketcher.Constraint("DistanceX", 2, 2, 2, 1, 8.0),
    Sketcher.Constraint("Angle", 1, Q("45 deg")),
    Sketcher.Constraint("DistanceX", 0, 1, 0, 2, 7.5),
    Sketcher.Constraint("DistanceY", -1, 1, 1, 2, 2.0),
])
sketch24.setExpression("Constraints[8]", "Params.sketch24_width")
sketch24.setExpression("Constraints[10]", "Params.sketch24_width2")
revolution11 = body29.newObject("PartDesign::Revolution", "Revolution010")
revolution11.Profile = sketch24
revolution11.ReferenceAxis = (sketch24, ["V_Axis"])
revolution11.setExpression("Angle", "Params.revolution11_angle")
body30 = doc.addObject("PartDesign::Body", "Body029")

sketch25 = body30.newObject("Sketcher::SketchObject", "Sketch024")
sketch25.AttachmentSupport = (doc.getObject("XY_Plane029"), [""])
sketch25.MapMode = "FlatFace"
sketch25.AttachmentOffset = App.Placement(Vector(0, 0, 2), App.Rotation())
sketch25.addGeometry(Part.Circle(Vector(0, 0, 0), Vector(0, 0, 1), 8), False)
sketch25.addConstraint([
    Sketcher.Constraint("Coincident", 0, 3, -1, 1),
    Sketcher.Constraint("Diameter", 0, 16.0),
])
sketch25.setExpression("Constraints[1]", "Params.sketch25_diameter")
pad14 = body30.newObject("PartDesign::Pad", "Pad013")
pad14.Profile = sketch25
pad14.setExpression("Length", "Params.pad14_length")
body31 = doc.addObject("PartDesign::Body", "Body030")

sketch26 = body31.newObject("Sketcher::SketchObject", "Sketch025")
sketch26.AttachmentSupport = (doc.getObject("XZ_Plane030"), [""])
sketch26.MapMode = "FlatFace"
add_polygon(sketch26, [(0, 3.5), (8, 3.5), (7.5, 4), (0, 4)])
sketch26.addConstraint([
    Sketcher.Constraint("Horizontal", 0),
    Sketcher.Constraint("Horizontal", 2),
    Sketcher.Constraint("Vertical", 3),
    Sketcher.Constraint("PointOnObject", 2, 2, -2),
    Sketcher.Constraint("DistanceX", 0, 1, 0, 2, 8.0),
    Sketcher.Constraint("Angle", 1, Q("135 deg")),
    Sketcher.Constraint("DistanceX", 2, 2, 2, 1, 7.5),
    Sketcher.Constraint("DistanceY", -1, 1, 1, 2, 4.0),
])
sketch26.setExpression("Constraints[8]", "Params.sketch26_width")
sketch26.setExpression("Constraints[10]", "Params.sketch26_width2")
revolution12 = body31.newObject("PartDesign::Revolution", "Revolution011")
revolution12.Profile = sketch26
revolution12.ReferenceAxis = (sketch26, ["V_Axis"])
revolution12.setExpression("Angle", "Params.revolution12_angle")
body32 = doc.addObject("PartDesign::Body", "Body031")

sketch27 = body32.newObject("Sketcher::SketchObject", "Sketch026")
sketch27.AttachmentSupport = (doc.getObject("XY_Plane031"), [""])
sketch27.MapMode = "FlatFace"
sketch27.addGeometry(Part.Circle(Vector(0, 0, 0), Vector(0, 0, 1), 8), False)
sketch27.addConstraint([
    Sketcher.Constraint("Coincident", 0, 3, -1, 1),
    Sketcher.Constraint("Diameter", 0, 15.0),
])
sketch27.setExpression("Constraints[1]", "Params.sketch27_diameter")
pad15 = body32.newObject("PartDesign::Pad", "Pad014")
pad15.Profile = sketch27
pad15.setExpression("Length", "Params.pad15_length")
doc.recompute()

boolean23 = body32.newObject("PartDesign::Boolean", "Boolean022")
boolean23.Type = "Fuse"
boolean23.addObjects([body29])
doc.recompute()

boolean24 = body32.newObject("PartDesign::Boolean", "Boolean023")
boolean24.Type = "Fuse"
boolean24.addObjects([body30])
doc.recompute()

boolean25 = body32.newObject("PartDesign::Boolean", "Boolean024")
boolean25.Type = "Fuse"
boolean25.addObjects([body31])
body33 = doc.addObject("PartDesign::Body", "Body032")
doc.recompute()

body32.Placement = App.Placement(Vector(0, 0, 24), App.Rotation(Vector(0, 0, 1), 0))
boolean26 = body33.newObject("PartDesign::Boolean", "Boolean025")
boolean26.Type = "Fuse"
boolean26.addObjects([body32])
body34 = doc.addObject("PartDesign::Body", "Body033")

sketch28 = body34.newObject("Sketcher::SketchObject", "Sketch027")
sketch28.AttachmentSupport = (doc.getObject("XZ_Plane033"), [""])
sketch28.MapMode = "FlatFace"
add_polygon(sketch28, [(0, 1.5), (7.5, 1.5), (8, 2), (0, 2)])
sketch28.addConstraint([
    Sketcher.Constraint("Horizontal", 0),
    Sketcher.Constraint("Horizontal", 2),
    Sketcher.Constraint("Vertical", 3),
    Sketcher.Constraint("PointOnObject", 2, 2, -2),
    Sketcher.Constraint("DistanceX", 2, 2, 2, 1, 8.0),
    Sketcher.Constraint("Angle", 1, Q("45 deg")),
    Sketcher.Constraint("DistanceX", 0, 1, 0, 2, 7.5),
    Sketcher.Constraint("DistanceY", -1, 1, 1, 2, 2.0),
])
sketch28.setExpression("Constraints[8]", "Params.sketch28_width")
sketch28.setExpression("Constraints[10]", "Params.sketch28_width2")
revolution13 = body34.newObject("PartDesign::Revolution", "Revolution012")
revolution13.Profile = sketch28
revolution13.ReferenceAxis = (sketch28, ["V_Axis"])
revolution13.setExpression("Angle", "Params.revolution13_angle")
body35 = doc.addObject("PartDesign::Body", "Body034")

sketch29 = body35.newObject("Sketcher::SketchObject", "Sketch028")
sketch29.AttachmentSupport = (doc.getObject("XY_Plane034"), [""])
sketch29.MapMode = "FlatFace"
sketch29.AttachmentOffset = App.Placement(Vector(0, 0, 2), App.Rotation())
sketch29.addGeometry(Part.Circle(Vector(0, 0, 0), Vector(0, 0, 1), 8), False)
sketch29.addConstraint([
    Sketcher.Constraint("Coincident", 0, 3, -1, 1),
    Sketcher.Constraint("Diameter", 0, 16.0),
])
sketch29.setExpression("Constraints[1]", "Params.sketch29_diameter")
pad16 = body35.newObject("PartDesign::Pad", "Pad015")
pad16.Profile = sketch29
pad16.setExpression("Length", "Params.pad16_length")
body36 = doc.addObject("PartDesign::Body", "Body035")

sketch30 = body36.newObject("Sketcher::SketchObject", "Sketch029")
sketch30.AttachmentSupport = (doc.getObject("XZ_Plane035"), [""])
sketch30.MapMode = "FlatFace"
add_polygon(sketch30, [(0, 3.5), (8, 3.5), (7.5, 4), (0, 4)])
sketch30.addConstraint([
    Sketcher.Constraint("Horizontal", 0),
    Sketcher.Constraint("Horizontal", 2),
    Sketcher.Constraint("Vertical", 3),
    Sketcher.Constraint("PointOnObject", 2, 2, -2),
    Sketcher.Constraint("DistanceX", 0, 1, 0, 2, 8.0),
    Sketcher.Constraint("Angle", 1, Q("135 deg")),
    Sketcher.Constraint("DistanceX", 2, 2, 2, 1, 7.5),
    Sketcher.Constraint("DistanceY", -1, 1, 1, 2, 4.0),
])
sketch30.setExpression("Constraints[8]", "Params.sketch30_width")
sketch30.setExpression("Constraints[10]", "Params.sketch30_width2")
revolution14 = body36.newObject("PartDesign::Revolution", "Revolution013")
revolution14.Profile = sketch30
revolution14.ReferenceAxis = (sketch30, ["V_Axis"])
revolution14.setExpression("Angle", "Params.revolution14_angle")
body37 = doc.addObject("PartDesign::Body", "Body036")

sketch31 = body37.newObject("Sketcher::SketchObject", "Sketch030")
sketch31.AttachmentSupport = (doc.getObject("XY_Plane036"), [""])
sketch31.MapMode = "FlatFace"
sketch31.addGeometry(Part.Circle(Vector(0, 0, 0), Vector(0, 0, 1), 8), False)
sketch31.addConstraint([
    Sketcher.Constraint("Coincident", 0, 3, -1, 1),
    Sketcher.Constraint("Diameter", 0, 15.0),
])
sketch31.setExpression("Constraints[1]", "Params.sketch31_diameter")
pad17 = body37.newObject("PartDesign::Pad", "Pad016")
pad17.Profile = sketch31
pad17.setExpression("Length", "Params.pad17_length")
doc.recompute()

boolean27 = body37.newObject("PartDesign::Boolean", "Boolean026")
boolean27.Type = "Fuse"
boolean27.addObjects([body34])
doc.recompute()

boolean28 = body37.newObject("PartDesign::Boolean", "Boolean027")
boolean28.Type = "Fuse"
boolean28.addObjects([body35])
doc.recompute()

boolean29 = body37.newObject("PartDesign::Boolean", "Boolean028")
boolean29.Type = "Fuse"
boolean29.addObjects([body36])
doc.recompute()

boolean30 = body37.newObject("PartDesign::Boolean", "Boolean029")
boolean30.Type = "Fuse"
boolean30.addObjects([body8])
doc.recompute()

boolean31 = body37.newObject("PartDesign::Boolean", "Boolean030")
boolean31.Type = "Fuse"
boolean31.addObjects([body13])
doc.recompute()

boolean32 = body37.newObject("PartDesign::Boolean", "Boolean031")
boolean32.Type = "Fuse"
boolean32.addObjects([body18])
doc.recompute()

boolean33 = body37.newObject("PartDesign::Boolean", "Boolean032")
boolean33.Type = "Fuse"
boolean33.addObjects([body23])
doc.recompute()

boolean34 = body37.newObject("PartDesign::Boolean", "Boolean033")
boolean34.Type = "Fuse"
boolean34.addObjects([body28])
doc.recompute()

boolean35 = body37.newObject("PartDesign::Boolean", "Boolean034")
boolean35.Type = "Fuse"
boolean35.addObjects([body33])
body38 = doc.addObject("PartDesign::Body", "Body037")
doc.recompute()

body37.Placement = App.Placement(Vector(0, 0, 4), App.Rotation(Vector(0, 0, 1), 0))
boolean36 = body38.newObject("PartDesign::Boolean", "Boolean035")
boolean36.Type = "Fuse"
boolean36.addObjects([body37])
body39 = doc.addObject("PartDesign::Body", "Body038")

sketch32 = body39.newObject("Sketcher::SketchObject", "Sketch031")
sketch32.AttachmentSupport = (doc.getObject("XY_Plane038"), [""])
sketch32.MapMode = "FlatFace"
sketch32.addGeometry(Part.Circle(Vector(0, 0, 0), Vector(0, 0, 1), 9), False)
sketch32.addConstraint([
    Sketcher.Constraint("Coincident", 0, 3, -1, 1),
    Sketcher.Constraint("Diameter", 0, 18.0),
])
sketch32.setExpression("Constraints[1]", "Params.sketch32_diameter")
pad18 = body39.newObject("PartDesign::Pad", "Pad017")
pad18.Profile = sketch32
pad18.setExpression("Length", "Params.pad18_length")
doc.recompute()

boolean37 = body39.newObject("PartDesign::Boolean", "Boolean036")
boolean37.Type = "Fuse"
boolean37.addObjects([body38])
doc.recompute()

boolean38 = body39.newObject("PartDesign::Boolean", "Boolean037")
boolean38.Type = "Cut"
boolean38.addObjects([body3])

doc.recompute()
